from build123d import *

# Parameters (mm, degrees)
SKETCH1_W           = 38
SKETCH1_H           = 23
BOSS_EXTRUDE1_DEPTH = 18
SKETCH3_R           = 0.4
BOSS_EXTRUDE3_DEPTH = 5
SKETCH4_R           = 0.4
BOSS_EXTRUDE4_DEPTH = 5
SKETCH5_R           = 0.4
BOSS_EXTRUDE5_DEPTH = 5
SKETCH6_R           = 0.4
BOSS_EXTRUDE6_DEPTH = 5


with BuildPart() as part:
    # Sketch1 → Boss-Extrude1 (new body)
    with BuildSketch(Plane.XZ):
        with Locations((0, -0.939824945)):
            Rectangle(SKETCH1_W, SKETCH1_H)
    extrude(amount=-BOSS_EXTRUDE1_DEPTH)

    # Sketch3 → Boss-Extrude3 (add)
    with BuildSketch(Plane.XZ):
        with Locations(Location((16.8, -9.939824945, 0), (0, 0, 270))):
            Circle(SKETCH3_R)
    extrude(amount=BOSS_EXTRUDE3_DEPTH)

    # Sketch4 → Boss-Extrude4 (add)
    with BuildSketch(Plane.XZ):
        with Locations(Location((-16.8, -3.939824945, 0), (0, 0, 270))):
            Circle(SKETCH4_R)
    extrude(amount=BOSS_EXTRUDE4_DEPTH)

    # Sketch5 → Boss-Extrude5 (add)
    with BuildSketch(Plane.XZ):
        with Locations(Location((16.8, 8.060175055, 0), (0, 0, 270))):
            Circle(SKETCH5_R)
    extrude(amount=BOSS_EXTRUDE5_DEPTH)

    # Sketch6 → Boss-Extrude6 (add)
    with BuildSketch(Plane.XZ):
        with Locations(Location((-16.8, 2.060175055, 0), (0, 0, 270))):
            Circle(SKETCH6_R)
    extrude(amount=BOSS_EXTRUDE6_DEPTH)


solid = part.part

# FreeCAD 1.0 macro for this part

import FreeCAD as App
import Part
import Sketcher
from FreeCAD import Vector
Q = App.Units.Quantity


def add_polygon(sketch, points):
    """Adds a closed chain of lines whose ends are joined by coincident constraints."""
    first, n = sketch.GeometryCount, len(points)
    for a, b in zip(points, points[1:] + points[:1]):
        sketch.addGeometry(Part.LineSegment(App.Vector(*a, 0), App.Vector(*b, 0)), False)
    for i in range(n):
        sketch.addConstraint(Sketcher.Constraint("Coincident", first + i, 2, first + (i + 1) % n, 1))

doc = App.newDocument("Part")
body = doc.addObject("PartDesign::Body", "Body")

# Sketch on XZ plane
sketch1 = doc.addObject("Sketcher::SketchObject", "Sketch")
body.addObject(sketch1)
sketch1.AttachmentSupport = (doc.XZ_Plane, [""])
sketch1.MapMode = "FlatFace"
add_polygon(sketch1, [(-19, 10.560175), (-19, -12.439825), (19, -12.439825), (19, 10.560175)])  # lines 0-3
sketch1.addConstraint([
    Sketcher.Constraint("Vertical", 0),
    Sketcher.Constraint("Horizontal", 1),
    Sketcher.Constraint("Vertical", 2),
    Sketcher.Constraint("Horizontal", 3),
    Sketcher.Constraint("DistanceX", 1, 1, 1, 2, Q("38 mm")),
    Sketcher.Constraint("DistanceY", 0, 2, 0, 1, Q("23 mm")),
    Sketcher.Constraint("DistanceX", 0, 2, -1, 1, Q("19 mm")),
    Sketcher.Constraint("DistanceY", 0, 2, -1, 1, Q("12.439825 mm")),
])
pad1 = doc.addObject("PartDesign::Pad", "Pad")
body.addObject(pad1)
pad1.Profile = sketch1
pad1.Length = 18
pad1.Reversed = True

# Sketch on XZ plane
sketch2 = doc.addObject("Sketcher::SketchObject", "Sketch001")
body.addObject(sketch2)
sketch2.AttachmentSupport = (doc.XZ_Plane, [""])
sketch2.MapMode = "FlatFace"
sketch2.addGeometry(Part.Circle(Vector(16.8, -9.939825, 0), Vector(0, 0, 1), 0.4), False)
sketch2.addConstraint([
    Sketcher.Constraint("Diameter", 0, Q("0.8 mm")),
    Sketcher.Constraint("DistanceX", -1, 1, 0, 3, Q("16.8 mm")),
    Sketcher.Constraint("DistanceY", 0, 3, -1, 1, Q("9.939825 mm")),
])
pad2 = doc.addObject("PartDesign::Pad", "Pad001")
body.addObject(pad2)
pad2.Profile = sketch2
pad2.Length = 5

# Sketch on XZ plane
sketch3 = doc.addObject("Sketcher::SketchObject", "Sketch002")
body.addObject(sketch3)
sketch3.AttachmentSupport = (doc.XZ_Plane, [""])
sketch3.MapMode = "FlatFace"
sketch3.addGeometry(Part.Circle(Vector(-16.8, -3.939825, 0), Vector(0, 0, 1), 0.4), False)
sketch3.addConstraint([
    Sketcher.Constraint("Diameter", 0, Q("0.8 mm")),
    Sketcher.Constraint("DistanceX", 0, 3, -1, 1, Q("16.8 mm")),
    Sketcher.Constraint("DistanceY", 0, 3, -1, 1, Q("3.939825 mm")),
])
pad3 = doc.addObject("PartDesign::Pad", "Pad002")
body.addObject(pad3)
pad3.Profile = sketch3
pad3.Length = 5

# Sketch on XZ plane
sketch4 = doc.addObject("Sketcher::SketchObject", "Sketch003")
body.addObject(sketch4)
sketch4.AttachmentSupport = (doc.XZ_Plane, [""])
sketch4.MapMode = "FlatFace"
sketch4.addGeometry(Part.Circle(Vector(16.8, 8.060175, 0), Vector(0, 0, 1), 0.4), False)
sketch4.addConstraint([
    Sketcher.Constraint("Diameter", 0, Q("0.8 mm")),
    Sketcher.Constraint("DistanceX", -1, 1, 0, 3, Q("16.8 mm")),
    Sketcher.Constraint("DistanceY", -1, 1, 0, 3, Q("8.060175 mm")),
])
pad4 = doc.addObject("PartDesign::Pad", "Pad003")
body.addObject(pad4)
pad4.Profile = sketch4
pad4.Length = 5

# Sketch on XZ plane
sketch5 = doc.addObject("Sketcher::SketchObject", "Sketch004")
body.addObject(sketch5)
sketch5.AttachmentSupport = (doc.XZ_Plane, [""])
sketch5.MapMode = "FlatFace"
sketch5.addGeometry(Part.Circle(Vector(-16.8, 2.060175, 0), Vector(0, 0, 1), 0.4), False)
sketch5.addConstraint([
    Sketcher.Constraint("Diameter", 0, Q("0.8 mm")),
    Sketcher.Constraint("DistanceX", 0, 3, -1, 1, Q("16.8 mm")),
    Sketcher.Constraint("DistanceY", -1, 1, 0, 3, Q("2.060175 mm")),
])
pad5 = doc.addObject("PartDesign::Pad", "Pad004")
body.addObject(pad5)
pad5.Profile = sketch5
pad5.Length = 5

doc.recompute()
